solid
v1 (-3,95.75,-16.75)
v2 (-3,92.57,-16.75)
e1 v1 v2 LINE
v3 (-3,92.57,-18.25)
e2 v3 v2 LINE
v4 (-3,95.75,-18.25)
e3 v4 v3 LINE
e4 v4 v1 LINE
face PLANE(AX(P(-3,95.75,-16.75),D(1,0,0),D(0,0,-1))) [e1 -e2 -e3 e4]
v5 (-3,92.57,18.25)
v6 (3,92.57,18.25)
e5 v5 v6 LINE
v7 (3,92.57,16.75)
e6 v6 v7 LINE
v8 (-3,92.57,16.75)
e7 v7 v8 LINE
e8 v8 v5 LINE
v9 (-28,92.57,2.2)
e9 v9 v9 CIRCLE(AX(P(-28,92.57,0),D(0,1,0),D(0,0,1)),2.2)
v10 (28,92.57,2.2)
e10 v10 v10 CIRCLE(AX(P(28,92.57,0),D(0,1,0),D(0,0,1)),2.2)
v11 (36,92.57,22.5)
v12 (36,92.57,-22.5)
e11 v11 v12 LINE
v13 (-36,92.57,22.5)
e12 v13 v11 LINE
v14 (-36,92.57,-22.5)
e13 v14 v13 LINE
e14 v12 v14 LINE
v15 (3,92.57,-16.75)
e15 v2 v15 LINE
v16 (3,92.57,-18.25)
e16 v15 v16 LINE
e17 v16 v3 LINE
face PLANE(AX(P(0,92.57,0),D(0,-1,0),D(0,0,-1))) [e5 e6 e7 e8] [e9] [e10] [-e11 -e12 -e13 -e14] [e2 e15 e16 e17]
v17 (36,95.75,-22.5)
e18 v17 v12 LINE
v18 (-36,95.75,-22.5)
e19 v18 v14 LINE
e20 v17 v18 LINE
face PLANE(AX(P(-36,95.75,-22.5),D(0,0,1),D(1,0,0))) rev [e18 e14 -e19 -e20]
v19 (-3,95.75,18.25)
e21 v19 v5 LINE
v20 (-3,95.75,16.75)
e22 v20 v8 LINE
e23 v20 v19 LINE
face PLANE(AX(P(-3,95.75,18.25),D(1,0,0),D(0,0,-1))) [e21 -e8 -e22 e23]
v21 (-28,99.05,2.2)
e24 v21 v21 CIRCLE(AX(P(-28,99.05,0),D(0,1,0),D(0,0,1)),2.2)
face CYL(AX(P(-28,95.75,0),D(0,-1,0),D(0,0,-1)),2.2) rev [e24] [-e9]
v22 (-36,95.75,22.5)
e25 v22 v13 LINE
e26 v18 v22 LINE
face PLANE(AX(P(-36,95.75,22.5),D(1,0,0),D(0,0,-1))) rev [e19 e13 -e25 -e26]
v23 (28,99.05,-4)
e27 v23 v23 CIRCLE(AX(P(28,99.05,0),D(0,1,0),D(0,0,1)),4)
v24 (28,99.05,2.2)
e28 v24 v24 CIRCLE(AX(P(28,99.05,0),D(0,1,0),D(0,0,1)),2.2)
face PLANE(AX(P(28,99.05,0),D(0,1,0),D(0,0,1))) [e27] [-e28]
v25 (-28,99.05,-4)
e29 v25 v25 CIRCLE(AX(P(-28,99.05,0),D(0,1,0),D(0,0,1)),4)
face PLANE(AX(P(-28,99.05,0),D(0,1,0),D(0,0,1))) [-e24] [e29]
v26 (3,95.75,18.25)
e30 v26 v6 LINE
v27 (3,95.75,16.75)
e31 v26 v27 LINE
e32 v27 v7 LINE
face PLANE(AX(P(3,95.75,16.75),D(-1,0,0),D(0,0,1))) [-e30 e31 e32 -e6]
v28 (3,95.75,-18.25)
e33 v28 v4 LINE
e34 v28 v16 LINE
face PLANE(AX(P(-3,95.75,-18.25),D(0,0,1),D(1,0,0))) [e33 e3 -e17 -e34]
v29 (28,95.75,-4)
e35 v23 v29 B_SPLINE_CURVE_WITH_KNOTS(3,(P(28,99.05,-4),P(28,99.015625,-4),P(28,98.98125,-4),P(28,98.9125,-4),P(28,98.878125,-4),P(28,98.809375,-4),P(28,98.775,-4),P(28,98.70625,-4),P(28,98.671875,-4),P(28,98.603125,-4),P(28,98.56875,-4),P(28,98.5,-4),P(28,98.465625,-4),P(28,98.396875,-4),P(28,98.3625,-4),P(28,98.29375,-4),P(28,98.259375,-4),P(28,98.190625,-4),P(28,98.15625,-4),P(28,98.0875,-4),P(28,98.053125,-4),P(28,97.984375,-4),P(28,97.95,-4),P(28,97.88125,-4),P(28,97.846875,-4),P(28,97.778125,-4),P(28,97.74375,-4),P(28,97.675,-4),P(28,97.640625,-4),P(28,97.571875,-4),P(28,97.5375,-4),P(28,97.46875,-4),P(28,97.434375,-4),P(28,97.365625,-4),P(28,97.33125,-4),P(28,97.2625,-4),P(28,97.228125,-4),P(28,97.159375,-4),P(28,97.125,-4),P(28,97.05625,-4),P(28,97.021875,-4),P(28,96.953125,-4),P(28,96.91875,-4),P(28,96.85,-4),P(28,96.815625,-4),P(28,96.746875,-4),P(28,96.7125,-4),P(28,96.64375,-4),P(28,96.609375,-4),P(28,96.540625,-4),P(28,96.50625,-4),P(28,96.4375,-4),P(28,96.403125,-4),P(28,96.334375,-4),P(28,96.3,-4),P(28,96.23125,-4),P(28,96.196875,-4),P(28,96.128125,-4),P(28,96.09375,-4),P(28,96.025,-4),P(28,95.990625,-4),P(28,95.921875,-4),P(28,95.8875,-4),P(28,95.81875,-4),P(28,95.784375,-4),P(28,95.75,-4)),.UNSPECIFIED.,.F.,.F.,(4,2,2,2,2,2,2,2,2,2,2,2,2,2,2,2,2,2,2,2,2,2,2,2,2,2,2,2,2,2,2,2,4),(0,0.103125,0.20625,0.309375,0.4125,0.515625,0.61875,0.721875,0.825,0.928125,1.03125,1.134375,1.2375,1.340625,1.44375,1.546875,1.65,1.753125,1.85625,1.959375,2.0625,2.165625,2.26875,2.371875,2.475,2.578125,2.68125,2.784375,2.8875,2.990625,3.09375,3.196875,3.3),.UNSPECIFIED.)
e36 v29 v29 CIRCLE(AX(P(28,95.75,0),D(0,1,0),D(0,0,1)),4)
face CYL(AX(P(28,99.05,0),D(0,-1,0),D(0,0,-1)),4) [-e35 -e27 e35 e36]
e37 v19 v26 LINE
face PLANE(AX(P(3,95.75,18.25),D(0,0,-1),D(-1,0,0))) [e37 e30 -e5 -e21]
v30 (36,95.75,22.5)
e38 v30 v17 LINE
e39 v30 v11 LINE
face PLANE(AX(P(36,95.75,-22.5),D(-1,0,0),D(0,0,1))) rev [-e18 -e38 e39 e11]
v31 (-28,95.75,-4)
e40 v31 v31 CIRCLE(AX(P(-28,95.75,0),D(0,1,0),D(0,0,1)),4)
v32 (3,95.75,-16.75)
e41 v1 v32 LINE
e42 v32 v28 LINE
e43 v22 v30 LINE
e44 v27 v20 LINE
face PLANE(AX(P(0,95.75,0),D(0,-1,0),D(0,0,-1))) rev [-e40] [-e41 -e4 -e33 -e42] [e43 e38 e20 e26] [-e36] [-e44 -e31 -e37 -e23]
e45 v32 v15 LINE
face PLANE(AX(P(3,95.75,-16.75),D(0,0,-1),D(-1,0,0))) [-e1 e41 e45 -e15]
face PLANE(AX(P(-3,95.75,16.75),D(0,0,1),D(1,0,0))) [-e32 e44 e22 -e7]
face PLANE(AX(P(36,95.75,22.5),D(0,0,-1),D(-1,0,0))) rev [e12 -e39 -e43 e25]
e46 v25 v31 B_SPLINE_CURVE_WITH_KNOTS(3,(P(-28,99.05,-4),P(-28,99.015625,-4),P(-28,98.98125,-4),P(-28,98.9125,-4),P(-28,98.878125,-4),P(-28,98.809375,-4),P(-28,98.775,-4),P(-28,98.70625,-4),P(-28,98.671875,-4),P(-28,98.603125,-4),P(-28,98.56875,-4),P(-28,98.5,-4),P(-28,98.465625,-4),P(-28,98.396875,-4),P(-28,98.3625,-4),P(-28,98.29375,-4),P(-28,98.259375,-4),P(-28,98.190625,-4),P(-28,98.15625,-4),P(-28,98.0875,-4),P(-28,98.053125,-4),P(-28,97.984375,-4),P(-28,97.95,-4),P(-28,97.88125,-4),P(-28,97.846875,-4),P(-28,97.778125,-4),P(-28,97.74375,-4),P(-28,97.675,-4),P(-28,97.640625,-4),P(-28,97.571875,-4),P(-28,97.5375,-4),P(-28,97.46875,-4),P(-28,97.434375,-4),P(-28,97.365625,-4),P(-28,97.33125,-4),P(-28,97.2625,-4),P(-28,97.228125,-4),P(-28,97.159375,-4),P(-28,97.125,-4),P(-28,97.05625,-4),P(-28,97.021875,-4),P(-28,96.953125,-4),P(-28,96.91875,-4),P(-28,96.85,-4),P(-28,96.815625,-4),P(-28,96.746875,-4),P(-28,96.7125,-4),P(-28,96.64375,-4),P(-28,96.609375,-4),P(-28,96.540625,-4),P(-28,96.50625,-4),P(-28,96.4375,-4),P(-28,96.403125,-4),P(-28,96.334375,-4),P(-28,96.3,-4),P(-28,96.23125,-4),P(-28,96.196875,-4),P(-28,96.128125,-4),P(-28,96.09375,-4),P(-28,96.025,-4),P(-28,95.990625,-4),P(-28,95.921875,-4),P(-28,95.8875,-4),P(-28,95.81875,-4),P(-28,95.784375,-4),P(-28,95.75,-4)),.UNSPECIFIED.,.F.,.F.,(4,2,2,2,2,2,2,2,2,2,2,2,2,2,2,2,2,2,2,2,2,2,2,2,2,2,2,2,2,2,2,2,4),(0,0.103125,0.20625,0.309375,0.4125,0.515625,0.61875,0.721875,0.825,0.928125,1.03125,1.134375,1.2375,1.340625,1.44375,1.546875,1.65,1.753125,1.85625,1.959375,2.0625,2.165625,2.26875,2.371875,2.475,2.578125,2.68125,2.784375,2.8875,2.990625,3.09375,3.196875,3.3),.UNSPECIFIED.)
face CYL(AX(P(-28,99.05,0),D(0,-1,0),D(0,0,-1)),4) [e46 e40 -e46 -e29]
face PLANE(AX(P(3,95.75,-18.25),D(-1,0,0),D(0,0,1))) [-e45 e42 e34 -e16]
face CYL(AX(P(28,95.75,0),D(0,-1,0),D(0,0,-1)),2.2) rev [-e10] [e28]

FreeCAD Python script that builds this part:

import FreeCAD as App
import Part
import Sketcher

V = App.Vector

doc = App.newDocument("Part")
body = doc.addObject("PartDesign::Body", "Body")

# Sketch on XZ plane
sketch1 = doc.addObject("Sketcher::SketchObject", "Sketch")
body.addObject(sketch1)
sketch1.AttachmentSupport = (doc.XZ_Plane, [""])
sketch1.MapMode = "FlatFace"
sketch1.AttachmentOffset = App.Placement(V(0, 0, -92.57), App.Rotation())
sketch1.addGeometry([
    Part.LineSegment(V(-36, -22.5, 0), V(-36, 22.5, 0)),  # 0
    Part.LineSegment(V(-36, 22.5, 0), V(36, 22.5, 0)),  # 1
    Part.LineSegment(V(36, 22.5, 0), V(36, -22.5, 0)),  # 2
    Part.LineSegment(V(36, -22.5, 0), V(-36, -22.5, 0)),  # 3
    Part.LineSegment(V(3, 18.2, 0), V(-3, 18.2, 0)),  # 4
    Part.LineSegment(V(-3, 18.2, 0), V(-3, 16.8, 0)),  # 5
    Part.LineSegment(V(-3, 16.8, 0), V(3, 16.8, 0)),  # 6
    Part.LineSegment(V(3, 16.8, 0), V(3, 18.2, 0)),  # 7
    Part.Circle(V(-28, 0, 0), V(0, 0, 1), 2.2),  # 8
    Part.Circle(V(28, 0, 0), V(0, 0, 1), 2.2),  # 9
    Part.LineSegment(V(3, -16.8, 0), V(-3, -16.8, 0)),  # 10
    Part.LineSegment(V(-3, -16.8, 0), V(-3, -18.2, 0)),  # 11
    Part.LineSegment(V(-3, -18.2, 0), V(3, -18.2, 0)),  # 12
    Part.LineSegment(V(3, -18.2, 0), V(3, -16.8, 0)),  # 13
], False)
sketch1.addConstraint([
    Sketcher.Constraint("Coincident", 0, 2, 1, 1),
    Sketcher.Constraint("Coincident", 1, 2, 2, 1),
    Sketcher.Constraint("Coincident", 2, 2, 3, 1),
    Sketcher.Constraint("Coincident", 3, 2, 0, 1),
    Sketcher.Constraint("Coincident", 4, 2, 5, 1),
    Sketcher.Constraint("Coincident", 5, 2, 6, 1),
    Sketcher.Constraint("Coincident", 6, 2, 7, 1),
    Sketcher.Constraint("Coincident", 7, 2, 4, 1),
    Sketcher.Constraint("Coincident", 10, 2, 11, 1),
    Sketcher.Constraint("Coincident", 11, 2, 12, 1),
    Sketcher.Constraint("Coincident", 12, 2, 13, 1),
    Sketcher.Constraint("Coincident", 13, 2, 10, 1),
    Sketcher.Constraint("Vertical", 0),
    Sketcher.Constraint("Horizontal", 1),
    Sketcher.Constraint("Vertical", 2),
    Sketcher.Constraint("Horizontal", 3),
    Sketcher.Constraint("Horizontal", 4),
    Sketcher.Constraint("Vertical", 5),
    Sketcher.Constraint("Horizontal", 6),
    Sketcher.Constraint("Vertical", 7),
    Sketcher.Constraint("Horizontal", 10),
    Sketcher.Constraint("Vertical", 11),
    Sketcher.Constraint("Horizontal", 12),
    Sketcher.Constraint("Vertical", 13),
    Sketcher.Constraint("Equal", 8, 9),
    Sketcher.Constraint("Symmetric", 8, 3, 9, 3, -1, 1),
    Sketcher.Constraint("Symmetric", 0, 2, 2, 2, -1, 1),
    Sketcher.Constraint("Symmetric", 6, 2, 10, 2, -1, 1),
    Sketcher.Constraint("Symmetric", 4, 2, 12, 2, -1, 1),
    Sketcher.Constraint("PointOnObject", 8, 3, -1),
    Sketcher.Constraint("Vertical", 5, 2, 10, 2),
    Sketcher.Constraint("Diameter", 8, 4.4),
    Sketcher.Constraint("DistanceX", 1, 1, 1, 2, 72.0),
    Sketcher.Constraint("DistanceX", 4, 2, 4, 1, 6.0),
    Sketcher.Constraint("DistanceY", 0, 1, 0, 2, 45.0),
    Sketcher.Constraint("DistanceY", 5, 2, 5, 1, 1.5),
    Sketcher.Constraint("DistanceX", 8, 3, -1, 1, 28.0),
    Sketcher.Constraint("DistanceY", 10, 2, 4, 2, 35.0),
])
pad1 = doc.addObject("PartDesign::Pad", "Pad")
body.addObject(pad1)
pad1.Profile = sketch1
pad1.Length = 3.18
pad1.Reversed = True

# Sketch on XZ plane
sketch2 = doc.addObject("Sketcher::SketchObject", "Sketch001")
body.addObject(sketch2)
sketch2.AttachmentSupport = (doc.XZ_Plane, [""])
sketch2.MapMode = "FlatFace"
sketch2.AttachmentOffset = App.Placement(V(0, 0, -95.75), App.Rotation())
sketch2.addGeometry([
    Part.Circle(V(-28, 0, 0), V(0, 0, 1), 4),
    Part.Circle(V(-28, 0, 0), V(0, 0, 1), 2.2),
    Part.Circle(V(28, 0, 0), V(0, 0, 1), 4),
    Part.Circle(V(28, 0, 0), V(0, 0, 1), 2.2),
], False)
sketch2.addConstraint([
    Sketcher.Constraint("Coincident", 1, 3, 0, 3),
    Sketcher.Constraint("Coincident", 3, 3, 2, 3),
    Sketcher.Constraint("Equal", 0, 2),
    Sketcher.Constraint("Equal", 1, 3),
    Sketcher.Constraint("Symmetric", 0, 3, 2, 3, -1, 1),
    Sketcher.Constraint("PointOnObject", 0, 3, -1),
    Sketcher.Constraint("Diameter", 0, 8.0),
    Sketcher.Constraint("Diameter", 1, 4.4),
    Sketcher.Constraint("DistanceX", 0, 3, -1, 1, 28.0),
])
pad2 = doc.addObject("PartDesign::Pad", "Pad001")
body.addObject(pad2)
pad2.Profile = sketch2
pad2.Length = 3.3
pad2.Reversed = True

doc.recompute()
